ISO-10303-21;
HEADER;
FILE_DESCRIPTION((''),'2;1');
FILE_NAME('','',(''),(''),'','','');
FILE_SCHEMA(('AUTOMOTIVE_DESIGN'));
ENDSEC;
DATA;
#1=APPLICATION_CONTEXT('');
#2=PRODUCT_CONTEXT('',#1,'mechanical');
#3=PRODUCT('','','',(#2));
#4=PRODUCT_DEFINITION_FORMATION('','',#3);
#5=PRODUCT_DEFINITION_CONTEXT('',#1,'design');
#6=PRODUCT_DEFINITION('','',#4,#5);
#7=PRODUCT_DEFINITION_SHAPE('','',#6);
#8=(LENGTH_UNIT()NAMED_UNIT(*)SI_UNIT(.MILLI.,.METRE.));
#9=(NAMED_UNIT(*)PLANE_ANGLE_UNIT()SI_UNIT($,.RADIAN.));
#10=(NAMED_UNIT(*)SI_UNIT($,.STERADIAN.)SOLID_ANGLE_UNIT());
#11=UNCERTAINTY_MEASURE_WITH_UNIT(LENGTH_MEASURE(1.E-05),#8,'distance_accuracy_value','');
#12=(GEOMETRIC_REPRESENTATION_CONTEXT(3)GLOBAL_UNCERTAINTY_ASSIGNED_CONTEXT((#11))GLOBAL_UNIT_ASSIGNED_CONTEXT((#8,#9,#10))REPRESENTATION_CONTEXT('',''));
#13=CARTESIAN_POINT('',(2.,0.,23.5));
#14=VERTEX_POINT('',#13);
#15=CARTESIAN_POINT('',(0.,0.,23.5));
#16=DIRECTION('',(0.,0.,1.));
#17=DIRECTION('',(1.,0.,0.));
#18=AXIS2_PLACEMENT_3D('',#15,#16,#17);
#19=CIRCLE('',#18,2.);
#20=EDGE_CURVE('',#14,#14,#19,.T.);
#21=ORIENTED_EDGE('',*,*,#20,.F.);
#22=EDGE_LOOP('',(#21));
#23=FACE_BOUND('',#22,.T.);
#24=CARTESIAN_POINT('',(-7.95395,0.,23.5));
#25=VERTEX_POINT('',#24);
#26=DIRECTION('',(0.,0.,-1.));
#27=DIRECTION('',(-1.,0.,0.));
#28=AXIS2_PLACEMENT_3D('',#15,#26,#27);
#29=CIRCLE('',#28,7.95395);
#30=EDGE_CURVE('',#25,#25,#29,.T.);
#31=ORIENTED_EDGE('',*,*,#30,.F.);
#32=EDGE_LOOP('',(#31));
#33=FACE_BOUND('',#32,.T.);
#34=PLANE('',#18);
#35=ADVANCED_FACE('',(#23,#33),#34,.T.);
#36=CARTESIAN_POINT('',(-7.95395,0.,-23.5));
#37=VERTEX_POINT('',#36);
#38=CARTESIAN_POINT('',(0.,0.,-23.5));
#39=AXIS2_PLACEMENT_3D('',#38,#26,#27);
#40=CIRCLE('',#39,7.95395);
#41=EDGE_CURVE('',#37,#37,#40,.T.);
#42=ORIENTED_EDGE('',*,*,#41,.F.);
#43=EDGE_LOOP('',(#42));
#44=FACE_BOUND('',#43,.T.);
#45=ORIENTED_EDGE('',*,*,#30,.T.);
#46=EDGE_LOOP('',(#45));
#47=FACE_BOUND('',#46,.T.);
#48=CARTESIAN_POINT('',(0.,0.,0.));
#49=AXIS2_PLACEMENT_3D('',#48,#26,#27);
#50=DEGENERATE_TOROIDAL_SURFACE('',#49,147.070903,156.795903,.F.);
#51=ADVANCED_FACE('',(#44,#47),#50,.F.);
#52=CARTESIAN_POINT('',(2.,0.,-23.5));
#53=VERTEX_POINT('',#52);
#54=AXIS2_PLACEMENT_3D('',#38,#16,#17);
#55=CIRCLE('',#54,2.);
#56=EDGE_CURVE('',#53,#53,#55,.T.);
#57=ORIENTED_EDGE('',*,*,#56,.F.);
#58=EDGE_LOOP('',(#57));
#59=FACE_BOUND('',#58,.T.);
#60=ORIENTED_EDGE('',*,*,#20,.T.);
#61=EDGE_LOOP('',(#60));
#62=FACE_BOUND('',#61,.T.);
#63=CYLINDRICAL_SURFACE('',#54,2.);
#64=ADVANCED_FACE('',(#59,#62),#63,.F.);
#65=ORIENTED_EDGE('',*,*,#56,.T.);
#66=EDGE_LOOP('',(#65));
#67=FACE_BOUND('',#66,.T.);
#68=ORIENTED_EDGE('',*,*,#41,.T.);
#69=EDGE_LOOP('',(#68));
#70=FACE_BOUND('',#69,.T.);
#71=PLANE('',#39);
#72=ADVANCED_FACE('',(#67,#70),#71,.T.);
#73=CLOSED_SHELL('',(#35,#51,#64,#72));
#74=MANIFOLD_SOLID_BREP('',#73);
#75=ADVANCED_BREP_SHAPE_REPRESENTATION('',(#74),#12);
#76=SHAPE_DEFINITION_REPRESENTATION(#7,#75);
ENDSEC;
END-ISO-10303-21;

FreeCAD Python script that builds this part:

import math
import FreeCAD as App
import Part
import Sketcher

V = App.Vector
Q = App.Units.Quantity

doc = App.newDocument("Part")
body = doc.addObject("PartDesign::Body", "Body")

sketch1 = doc.addObject("Sketcher::SketchObject", "Sketch")
body.addObject(sketch1)
sketch1.AttachmentSupport = (doc.YZ_Plane, [""])
sketch1.MapMode = "FlatFace"
sketch1.addGeometry([
    Part.LineSegment(V(0, 24, 0), V(0, -24, 0)),
    Part.LineSegment(V(0, -24, 0), V(8, -24, 0)),
    Part.ArcOfCircle(Part.Circle(V(-147, 0, 0), V(0, 0, 1), 157), math.radians(-8.62), math.radians(8.62)),
    Part.LineSegment(V(8, 24, 0), V(0, 24, 0)),
], False)
sketch1.addConstraint([
    Sketcher.Constraint("Coincident", 0, 2, 1, 1),
    Sketcher.Constraint("Coincident", 1, 2, 2, 1),
    Sketcher.Constraint("Coincident", 2, 2, 3, 1),
    Sketcher.Constraint("Coincident", 3, 2, 0, 1),
    Sketcher.Constraint("Vertical", 0),
    Sketcher.Constraint("Horizontal", 1),
    Sketcher.Constraint("Horizontal", 3),
    Sketcher.Constraint("Symmetric", 0, 2, 3, 2, -1, 1),
    Sketcher.Constraint("PointOnObject", 2, 3, -1),
    Sketcher.Constraint("DistanceY", 0, 2, 0, 1, Q("47 mm")),
    Sketcher.Constraint("Radius", 2, Q("156.795903 mm")),
    Sketcher.Constraint("DistanceX", 1, 1, 1, 2, Q("7.95395 mm")),
])
revolution = doc.addObject("PartDesign::Revolution", "Revolution")
body.addObject(revolution)
revolution.Profile = sketch1
revolution.ReferenceAxis = (sketch1, ["V_Axis"])
revolution.Angle = 360

sketch2 = doc.addObject("Sketcher::SketchObject", "Sketch001")
body.addObject(sketch2)
sketch2.AttachmentSupport = (doc.XY_Plane, [""])
sketch2.MapMode = "FlatFace"
sketch2.AttachmentOffset = App.Placement(V(0, 0, 23.5), App.Rotation())
sketch2.addGeometry(Part.Circle(V(0, 0, 0), V(0, 0, 1), 2), False)
sketch2.addConstraint([
    Sketcher.Constraint("Coincident", 0, 3, -1, 1),
    Sketcher.Constraint("Diameter", 0, Q("4 mm")),
])
pocket1 = doc.addObject("PartDesign::Pocket", "Pocket")
body.addObject(pocket1)
pocket1.Profile = sketch2
pocket1.Type = "ThroughAll"

doc.recompute()
